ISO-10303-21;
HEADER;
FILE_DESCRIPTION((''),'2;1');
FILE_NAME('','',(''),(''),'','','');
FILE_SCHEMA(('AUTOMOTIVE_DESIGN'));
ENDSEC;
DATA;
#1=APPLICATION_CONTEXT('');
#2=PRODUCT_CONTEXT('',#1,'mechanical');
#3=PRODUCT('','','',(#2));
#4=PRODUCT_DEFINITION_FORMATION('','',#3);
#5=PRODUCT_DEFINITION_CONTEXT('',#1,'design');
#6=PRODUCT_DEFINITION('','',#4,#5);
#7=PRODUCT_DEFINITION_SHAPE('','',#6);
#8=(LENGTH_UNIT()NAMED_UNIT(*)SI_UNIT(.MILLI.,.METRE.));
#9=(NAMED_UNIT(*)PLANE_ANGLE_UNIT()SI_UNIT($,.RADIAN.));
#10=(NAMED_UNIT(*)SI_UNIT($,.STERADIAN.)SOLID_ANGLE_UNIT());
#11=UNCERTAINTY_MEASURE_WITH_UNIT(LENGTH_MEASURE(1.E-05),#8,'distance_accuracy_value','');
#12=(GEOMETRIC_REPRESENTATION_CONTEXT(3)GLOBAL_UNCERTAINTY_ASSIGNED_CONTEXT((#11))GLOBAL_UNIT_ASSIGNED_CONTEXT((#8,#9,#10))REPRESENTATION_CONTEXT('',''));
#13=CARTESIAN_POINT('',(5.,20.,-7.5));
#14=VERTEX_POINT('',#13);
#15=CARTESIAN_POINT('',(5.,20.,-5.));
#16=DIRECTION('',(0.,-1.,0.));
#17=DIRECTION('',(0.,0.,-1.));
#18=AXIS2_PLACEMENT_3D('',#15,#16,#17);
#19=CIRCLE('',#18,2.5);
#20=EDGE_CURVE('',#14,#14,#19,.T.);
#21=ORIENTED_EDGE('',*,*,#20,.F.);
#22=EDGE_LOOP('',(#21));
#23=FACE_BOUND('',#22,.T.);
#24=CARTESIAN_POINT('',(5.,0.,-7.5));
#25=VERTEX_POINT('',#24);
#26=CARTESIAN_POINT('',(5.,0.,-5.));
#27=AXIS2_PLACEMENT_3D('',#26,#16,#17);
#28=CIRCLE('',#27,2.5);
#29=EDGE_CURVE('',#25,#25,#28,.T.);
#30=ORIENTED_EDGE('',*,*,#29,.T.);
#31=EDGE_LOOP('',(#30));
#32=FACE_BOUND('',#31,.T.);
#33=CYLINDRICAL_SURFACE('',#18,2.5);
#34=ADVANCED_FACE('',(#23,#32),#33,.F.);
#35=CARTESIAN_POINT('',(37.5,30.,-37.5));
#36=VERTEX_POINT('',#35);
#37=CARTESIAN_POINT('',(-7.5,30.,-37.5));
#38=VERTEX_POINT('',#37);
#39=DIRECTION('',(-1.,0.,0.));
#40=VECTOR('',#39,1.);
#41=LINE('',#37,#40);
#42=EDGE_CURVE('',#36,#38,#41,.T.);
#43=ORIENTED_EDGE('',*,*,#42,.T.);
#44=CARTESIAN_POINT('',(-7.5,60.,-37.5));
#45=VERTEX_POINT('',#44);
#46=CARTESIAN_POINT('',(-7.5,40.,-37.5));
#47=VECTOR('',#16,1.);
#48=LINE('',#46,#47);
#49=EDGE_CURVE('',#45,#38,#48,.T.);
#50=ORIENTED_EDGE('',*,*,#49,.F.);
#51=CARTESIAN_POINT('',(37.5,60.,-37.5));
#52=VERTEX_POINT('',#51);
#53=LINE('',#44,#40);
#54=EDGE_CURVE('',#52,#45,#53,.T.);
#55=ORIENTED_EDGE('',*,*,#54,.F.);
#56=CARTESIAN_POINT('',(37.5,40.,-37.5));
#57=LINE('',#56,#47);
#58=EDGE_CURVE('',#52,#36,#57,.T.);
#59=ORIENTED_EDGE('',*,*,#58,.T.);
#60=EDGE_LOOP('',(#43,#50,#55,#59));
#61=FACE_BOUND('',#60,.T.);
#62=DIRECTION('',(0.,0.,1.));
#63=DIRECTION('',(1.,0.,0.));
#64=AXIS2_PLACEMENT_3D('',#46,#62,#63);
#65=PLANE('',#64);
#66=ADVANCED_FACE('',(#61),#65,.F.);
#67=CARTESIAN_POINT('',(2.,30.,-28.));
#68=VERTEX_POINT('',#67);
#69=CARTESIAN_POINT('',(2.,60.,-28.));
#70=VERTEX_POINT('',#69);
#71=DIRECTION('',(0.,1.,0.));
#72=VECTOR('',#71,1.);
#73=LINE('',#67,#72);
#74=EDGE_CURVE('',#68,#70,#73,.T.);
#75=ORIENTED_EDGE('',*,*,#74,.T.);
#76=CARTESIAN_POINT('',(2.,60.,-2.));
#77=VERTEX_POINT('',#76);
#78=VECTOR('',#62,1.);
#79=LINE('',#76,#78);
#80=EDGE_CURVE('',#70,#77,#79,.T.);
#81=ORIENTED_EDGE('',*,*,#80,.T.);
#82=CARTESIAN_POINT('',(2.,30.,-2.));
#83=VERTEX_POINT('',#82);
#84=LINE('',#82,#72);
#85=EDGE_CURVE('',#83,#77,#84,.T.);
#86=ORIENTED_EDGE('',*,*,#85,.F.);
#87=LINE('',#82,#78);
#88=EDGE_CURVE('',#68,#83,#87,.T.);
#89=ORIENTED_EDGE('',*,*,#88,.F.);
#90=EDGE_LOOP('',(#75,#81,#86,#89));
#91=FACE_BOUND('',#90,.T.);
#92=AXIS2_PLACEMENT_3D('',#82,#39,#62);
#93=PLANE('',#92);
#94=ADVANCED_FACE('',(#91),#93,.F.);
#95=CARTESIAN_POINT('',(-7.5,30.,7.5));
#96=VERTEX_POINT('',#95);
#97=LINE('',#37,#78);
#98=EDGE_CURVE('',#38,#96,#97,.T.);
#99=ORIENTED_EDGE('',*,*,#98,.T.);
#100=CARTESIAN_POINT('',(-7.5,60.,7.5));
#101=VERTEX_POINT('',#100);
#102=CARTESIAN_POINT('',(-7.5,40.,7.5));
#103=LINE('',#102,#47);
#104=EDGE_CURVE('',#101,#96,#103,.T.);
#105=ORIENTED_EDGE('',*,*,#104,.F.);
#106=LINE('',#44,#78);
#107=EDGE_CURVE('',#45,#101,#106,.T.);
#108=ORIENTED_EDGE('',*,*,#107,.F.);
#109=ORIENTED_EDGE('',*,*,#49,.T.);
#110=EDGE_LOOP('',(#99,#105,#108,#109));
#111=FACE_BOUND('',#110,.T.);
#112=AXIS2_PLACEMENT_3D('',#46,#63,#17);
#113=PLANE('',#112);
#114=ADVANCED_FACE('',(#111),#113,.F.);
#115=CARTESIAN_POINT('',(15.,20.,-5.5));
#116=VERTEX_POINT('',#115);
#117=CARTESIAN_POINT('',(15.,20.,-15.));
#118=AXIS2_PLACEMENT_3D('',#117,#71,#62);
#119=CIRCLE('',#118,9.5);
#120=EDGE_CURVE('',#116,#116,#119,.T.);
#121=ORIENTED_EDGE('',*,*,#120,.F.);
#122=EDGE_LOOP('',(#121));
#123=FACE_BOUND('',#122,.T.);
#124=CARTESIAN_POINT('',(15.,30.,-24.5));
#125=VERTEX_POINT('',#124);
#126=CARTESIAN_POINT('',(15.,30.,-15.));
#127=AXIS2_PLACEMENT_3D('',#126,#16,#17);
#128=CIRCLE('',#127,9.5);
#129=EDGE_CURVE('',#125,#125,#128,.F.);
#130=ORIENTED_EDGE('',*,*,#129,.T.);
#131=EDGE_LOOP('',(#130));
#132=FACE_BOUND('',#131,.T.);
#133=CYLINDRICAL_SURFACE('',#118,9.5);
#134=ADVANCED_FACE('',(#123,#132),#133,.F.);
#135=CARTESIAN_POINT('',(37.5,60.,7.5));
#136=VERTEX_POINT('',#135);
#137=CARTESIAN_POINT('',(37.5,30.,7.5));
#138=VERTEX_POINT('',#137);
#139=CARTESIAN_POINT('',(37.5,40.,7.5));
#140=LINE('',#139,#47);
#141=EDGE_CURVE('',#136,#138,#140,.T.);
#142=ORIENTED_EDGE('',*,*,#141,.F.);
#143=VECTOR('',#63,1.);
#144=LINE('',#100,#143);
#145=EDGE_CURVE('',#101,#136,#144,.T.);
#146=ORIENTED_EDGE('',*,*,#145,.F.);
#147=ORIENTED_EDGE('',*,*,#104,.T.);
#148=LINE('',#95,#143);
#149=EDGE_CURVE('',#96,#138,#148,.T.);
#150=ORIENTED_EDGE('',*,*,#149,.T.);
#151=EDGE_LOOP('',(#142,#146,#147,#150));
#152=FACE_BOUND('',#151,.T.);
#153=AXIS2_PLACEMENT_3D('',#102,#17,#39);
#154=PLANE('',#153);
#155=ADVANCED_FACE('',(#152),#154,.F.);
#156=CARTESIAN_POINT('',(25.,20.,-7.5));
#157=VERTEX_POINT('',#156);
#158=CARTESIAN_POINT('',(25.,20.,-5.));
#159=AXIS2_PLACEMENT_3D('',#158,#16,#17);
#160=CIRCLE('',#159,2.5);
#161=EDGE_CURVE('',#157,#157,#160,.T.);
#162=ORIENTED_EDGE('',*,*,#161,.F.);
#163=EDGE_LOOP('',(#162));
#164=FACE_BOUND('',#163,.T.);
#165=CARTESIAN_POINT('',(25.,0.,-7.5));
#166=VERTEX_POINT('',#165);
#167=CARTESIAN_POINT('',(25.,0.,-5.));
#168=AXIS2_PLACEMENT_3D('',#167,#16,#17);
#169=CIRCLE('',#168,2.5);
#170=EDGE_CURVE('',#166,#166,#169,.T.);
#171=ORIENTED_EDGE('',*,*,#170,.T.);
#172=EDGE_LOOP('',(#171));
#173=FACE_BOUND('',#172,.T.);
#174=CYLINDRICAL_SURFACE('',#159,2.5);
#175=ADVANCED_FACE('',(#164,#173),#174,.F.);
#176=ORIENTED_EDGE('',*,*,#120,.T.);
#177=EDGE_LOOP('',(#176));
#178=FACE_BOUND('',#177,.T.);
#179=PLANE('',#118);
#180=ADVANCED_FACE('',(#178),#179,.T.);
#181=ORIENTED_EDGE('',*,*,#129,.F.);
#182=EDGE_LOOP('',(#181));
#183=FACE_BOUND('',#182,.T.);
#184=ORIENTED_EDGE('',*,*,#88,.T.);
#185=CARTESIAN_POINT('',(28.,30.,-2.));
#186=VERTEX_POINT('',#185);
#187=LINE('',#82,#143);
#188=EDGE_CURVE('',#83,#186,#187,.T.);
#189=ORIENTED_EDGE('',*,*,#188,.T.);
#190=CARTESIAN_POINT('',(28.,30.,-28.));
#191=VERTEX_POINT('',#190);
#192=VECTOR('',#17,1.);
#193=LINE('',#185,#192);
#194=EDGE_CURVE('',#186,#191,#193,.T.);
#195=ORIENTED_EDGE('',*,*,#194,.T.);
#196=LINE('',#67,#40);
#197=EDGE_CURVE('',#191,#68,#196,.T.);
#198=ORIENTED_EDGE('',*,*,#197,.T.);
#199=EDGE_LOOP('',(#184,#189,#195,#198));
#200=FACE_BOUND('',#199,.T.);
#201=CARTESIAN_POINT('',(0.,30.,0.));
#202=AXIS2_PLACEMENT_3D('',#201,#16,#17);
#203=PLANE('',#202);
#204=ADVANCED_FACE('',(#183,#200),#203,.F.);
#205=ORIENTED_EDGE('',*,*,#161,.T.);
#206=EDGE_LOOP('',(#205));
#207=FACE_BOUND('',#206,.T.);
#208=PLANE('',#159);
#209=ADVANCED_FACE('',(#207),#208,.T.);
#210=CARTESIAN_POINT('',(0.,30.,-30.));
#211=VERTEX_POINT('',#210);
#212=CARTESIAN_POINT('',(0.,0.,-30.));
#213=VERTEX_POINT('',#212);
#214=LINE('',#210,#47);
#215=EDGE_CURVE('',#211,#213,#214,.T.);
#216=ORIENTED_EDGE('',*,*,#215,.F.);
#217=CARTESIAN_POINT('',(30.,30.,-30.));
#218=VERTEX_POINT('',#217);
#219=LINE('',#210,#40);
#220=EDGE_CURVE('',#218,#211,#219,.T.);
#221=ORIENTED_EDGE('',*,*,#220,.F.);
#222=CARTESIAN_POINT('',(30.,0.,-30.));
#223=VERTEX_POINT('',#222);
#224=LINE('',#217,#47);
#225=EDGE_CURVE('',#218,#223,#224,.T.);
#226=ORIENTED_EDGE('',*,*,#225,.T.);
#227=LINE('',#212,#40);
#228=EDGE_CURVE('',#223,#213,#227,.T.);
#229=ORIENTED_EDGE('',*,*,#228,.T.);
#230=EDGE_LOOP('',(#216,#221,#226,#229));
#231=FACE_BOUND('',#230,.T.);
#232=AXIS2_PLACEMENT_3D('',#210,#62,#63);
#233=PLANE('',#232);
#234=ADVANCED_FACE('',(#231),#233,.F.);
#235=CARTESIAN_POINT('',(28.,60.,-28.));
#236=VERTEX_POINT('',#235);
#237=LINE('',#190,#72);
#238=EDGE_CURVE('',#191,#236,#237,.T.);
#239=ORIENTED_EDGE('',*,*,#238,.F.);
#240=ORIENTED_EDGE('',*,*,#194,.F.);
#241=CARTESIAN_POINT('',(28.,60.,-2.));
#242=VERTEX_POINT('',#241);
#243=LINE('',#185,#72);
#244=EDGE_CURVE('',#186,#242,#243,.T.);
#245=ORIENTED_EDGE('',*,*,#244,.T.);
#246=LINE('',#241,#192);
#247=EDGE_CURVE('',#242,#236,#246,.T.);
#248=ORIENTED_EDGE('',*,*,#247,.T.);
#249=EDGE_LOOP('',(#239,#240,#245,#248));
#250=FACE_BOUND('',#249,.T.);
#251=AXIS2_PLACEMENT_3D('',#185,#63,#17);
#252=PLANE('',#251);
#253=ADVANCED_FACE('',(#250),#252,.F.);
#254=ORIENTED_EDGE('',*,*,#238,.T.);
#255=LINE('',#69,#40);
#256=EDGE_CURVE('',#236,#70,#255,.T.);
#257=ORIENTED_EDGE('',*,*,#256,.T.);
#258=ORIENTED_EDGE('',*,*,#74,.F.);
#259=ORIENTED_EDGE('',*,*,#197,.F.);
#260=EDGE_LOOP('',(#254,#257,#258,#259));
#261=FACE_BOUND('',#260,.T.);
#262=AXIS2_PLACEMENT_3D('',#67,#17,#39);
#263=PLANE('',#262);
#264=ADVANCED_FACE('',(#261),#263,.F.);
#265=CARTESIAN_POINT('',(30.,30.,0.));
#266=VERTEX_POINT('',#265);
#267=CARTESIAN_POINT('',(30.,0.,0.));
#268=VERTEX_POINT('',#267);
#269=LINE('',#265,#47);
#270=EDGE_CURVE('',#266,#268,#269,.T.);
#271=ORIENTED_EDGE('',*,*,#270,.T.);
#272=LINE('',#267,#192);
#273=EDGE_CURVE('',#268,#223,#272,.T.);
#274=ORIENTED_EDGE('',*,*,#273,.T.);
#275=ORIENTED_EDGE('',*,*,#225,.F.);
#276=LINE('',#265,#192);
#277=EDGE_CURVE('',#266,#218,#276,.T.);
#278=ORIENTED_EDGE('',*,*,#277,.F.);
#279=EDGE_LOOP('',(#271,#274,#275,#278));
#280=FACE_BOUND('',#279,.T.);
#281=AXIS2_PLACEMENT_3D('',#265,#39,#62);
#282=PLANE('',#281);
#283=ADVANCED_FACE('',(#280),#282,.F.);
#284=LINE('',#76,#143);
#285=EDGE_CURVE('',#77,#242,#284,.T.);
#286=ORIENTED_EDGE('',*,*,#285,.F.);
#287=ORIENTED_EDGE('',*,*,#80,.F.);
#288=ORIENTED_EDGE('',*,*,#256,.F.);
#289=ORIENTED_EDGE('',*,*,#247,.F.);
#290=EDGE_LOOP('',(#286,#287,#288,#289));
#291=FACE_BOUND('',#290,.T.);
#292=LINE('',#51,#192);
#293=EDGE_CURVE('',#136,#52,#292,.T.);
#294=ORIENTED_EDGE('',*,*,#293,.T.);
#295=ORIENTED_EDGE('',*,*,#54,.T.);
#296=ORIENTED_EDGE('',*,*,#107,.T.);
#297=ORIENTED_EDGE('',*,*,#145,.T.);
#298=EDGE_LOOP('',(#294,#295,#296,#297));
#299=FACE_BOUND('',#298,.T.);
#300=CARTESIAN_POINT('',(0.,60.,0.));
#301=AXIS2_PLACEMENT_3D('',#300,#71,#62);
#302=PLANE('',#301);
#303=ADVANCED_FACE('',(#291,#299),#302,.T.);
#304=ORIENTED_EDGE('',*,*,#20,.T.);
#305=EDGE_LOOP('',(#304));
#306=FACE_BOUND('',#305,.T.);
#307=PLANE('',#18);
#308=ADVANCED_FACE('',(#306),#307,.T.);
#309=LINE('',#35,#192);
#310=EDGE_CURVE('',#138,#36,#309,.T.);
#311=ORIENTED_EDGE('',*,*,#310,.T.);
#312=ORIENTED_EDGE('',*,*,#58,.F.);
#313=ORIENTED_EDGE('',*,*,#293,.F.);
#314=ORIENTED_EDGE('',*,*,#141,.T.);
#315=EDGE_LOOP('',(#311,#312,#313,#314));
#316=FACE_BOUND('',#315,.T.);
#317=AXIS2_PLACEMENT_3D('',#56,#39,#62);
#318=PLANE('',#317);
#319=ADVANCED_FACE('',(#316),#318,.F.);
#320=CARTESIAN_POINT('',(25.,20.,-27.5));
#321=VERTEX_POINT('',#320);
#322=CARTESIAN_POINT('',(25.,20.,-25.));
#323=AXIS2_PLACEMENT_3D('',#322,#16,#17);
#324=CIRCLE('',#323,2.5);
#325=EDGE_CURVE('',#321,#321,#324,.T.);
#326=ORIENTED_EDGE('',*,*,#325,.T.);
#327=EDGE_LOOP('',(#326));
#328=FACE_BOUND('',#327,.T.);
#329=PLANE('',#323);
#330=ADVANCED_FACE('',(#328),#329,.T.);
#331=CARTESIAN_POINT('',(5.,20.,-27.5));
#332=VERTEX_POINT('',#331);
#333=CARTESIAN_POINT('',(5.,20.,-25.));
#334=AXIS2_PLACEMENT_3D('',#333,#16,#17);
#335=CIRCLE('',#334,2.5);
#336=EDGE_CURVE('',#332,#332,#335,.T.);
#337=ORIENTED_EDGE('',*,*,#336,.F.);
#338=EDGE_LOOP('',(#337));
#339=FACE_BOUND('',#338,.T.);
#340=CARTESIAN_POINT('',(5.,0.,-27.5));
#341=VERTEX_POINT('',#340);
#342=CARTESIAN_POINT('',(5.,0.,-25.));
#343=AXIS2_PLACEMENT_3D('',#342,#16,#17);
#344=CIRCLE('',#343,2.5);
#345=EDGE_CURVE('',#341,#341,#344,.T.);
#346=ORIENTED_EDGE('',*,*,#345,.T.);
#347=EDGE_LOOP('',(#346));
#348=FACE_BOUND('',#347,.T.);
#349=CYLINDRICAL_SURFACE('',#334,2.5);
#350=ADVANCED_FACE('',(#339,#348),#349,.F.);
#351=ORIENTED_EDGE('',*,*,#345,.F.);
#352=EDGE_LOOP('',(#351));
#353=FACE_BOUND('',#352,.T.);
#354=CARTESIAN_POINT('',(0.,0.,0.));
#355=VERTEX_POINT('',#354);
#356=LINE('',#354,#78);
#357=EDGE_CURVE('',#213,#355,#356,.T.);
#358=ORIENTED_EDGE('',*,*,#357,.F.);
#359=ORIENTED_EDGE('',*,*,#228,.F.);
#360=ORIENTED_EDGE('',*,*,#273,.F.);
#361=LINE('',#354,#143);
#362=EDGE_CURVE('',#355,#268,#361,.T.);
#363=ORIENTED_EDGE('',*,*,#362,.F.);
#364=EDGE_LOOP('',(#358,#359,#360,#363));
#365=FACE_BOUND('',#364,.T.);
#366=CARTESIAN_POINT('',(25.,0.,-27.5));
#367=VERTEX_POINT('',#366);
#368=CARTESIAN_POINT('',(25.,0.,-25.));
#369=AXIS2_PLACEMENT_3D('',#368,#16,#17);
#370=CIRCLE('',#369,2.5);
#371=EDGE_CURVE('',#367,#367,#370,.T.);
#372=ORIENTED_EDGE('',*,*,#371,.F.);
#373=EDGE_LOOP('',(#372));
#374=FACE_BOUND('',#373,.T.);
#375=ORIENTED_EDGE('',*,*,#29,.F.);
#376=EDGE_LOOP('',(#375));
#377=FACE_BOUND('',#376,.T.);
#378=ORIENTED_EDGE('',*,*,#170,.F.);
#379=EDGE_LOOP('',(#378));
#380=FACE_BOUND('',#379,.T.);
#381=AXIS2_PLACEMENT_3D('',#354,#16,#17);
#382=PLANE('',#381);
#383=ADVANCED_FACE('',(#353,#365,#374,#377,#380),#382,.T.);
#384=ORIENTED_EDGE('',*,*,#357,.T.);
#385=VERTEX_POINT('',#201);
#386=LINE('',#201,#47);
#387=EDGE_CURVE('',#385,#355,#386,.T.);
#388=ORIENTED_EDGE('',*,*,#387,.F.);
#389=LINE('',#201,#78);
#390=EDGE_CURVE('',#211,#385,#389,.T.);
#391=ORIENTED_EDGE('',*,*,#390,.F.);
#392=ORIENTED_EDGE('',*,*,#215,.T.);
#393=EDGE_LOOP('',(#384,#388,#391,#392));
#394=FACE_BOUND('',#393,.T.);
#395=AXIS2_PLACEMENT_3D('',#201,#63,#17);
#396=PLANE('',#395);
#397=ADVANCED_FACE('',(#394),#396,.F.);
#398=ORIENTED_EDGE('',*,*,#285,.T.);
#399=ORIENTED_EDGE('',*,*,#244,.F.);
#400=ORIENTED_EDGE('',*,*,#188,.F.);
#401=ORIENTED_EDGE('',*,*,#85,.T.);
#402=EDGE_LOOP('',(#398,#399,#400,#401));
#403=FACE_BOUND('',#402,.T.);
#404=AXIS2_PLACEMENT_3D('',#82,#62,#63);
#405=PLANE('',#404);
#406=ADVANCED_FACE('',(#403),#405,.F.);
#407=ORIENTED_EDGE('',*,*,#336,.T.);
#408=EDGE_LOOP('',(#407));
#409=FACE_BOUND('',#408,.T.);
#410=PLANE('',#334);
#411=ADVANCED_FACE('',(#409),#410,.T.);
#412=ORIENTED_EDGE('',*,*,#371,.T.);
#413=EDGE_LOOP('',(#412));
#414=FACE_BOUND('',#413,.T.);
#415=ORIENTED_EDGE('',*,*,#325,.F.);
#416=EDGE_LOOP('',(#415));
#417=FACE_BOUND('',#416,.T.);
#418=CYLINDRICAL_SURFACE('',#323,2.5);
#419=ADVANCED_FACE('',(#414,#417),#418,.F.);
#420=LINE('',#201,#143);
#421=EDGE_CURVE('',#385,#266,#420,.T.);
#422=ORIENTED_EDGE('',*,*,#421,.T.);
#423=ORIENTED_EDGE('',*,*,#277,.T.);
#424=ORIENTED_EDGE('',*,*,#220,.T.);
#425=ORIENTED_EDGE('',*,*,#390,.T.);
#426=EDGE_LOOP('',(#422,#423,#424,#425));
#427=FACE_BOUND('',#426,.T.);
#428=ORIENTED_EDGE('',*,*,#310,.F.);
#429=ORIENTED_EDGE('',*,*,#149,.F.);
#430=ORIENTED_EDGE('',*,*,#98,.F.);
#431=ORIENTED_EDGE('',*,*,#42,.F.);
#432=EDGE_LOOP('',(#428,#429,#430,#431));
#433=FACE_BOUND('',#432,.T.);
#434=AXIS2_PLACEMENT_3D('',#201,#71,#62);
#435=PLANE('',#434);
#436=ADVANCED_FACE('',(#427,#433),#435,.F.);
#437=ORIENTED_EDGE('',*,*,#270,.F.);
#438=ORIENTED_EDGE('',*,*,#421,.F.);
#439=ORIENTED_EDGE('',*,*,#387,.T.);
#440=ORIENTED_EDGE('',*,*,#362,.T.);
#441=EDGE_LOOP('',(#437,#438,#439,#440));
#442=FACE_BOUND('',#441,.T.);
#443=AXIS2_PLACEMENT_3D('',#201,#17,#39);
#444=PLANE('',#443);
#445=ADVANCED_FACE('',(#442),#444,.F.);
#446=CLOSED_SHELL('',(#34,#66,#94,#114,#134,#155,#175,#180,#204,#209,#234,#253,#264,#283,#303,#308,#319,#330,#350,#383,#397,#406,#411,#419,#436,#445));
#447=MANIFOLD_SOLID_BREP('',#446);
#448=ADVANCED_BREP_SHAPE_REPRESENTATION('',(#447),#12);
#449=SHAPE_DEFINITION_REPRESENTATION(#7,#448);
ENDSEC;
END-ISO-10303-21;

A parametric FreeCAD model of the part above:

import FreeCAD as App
import Part
import Sketcher
from FreeCAD import Vector
Q = App.Units.Quantity


def add_polygon(sketch, points):
    """Adds a closed chain of lines whose ends are joined by coincident constraints."""
    first, n = sketch.GeometryCount, len(points)
    for a, b in zip(points, points[1:] + points[:1]):
        sketch.addGeometry(Part.LineSegment(App.Vector(*a, 0), App.Vector(*b, 0)), False)
    for i in range(n):
        sketch.addConstraint(Sketcher.Constraint("Coincident", first + i, 2, first + (i + 1) % n, 1))

doc = App.newDocument("Part")
body = doc.addObject("PartDesign::Body", "Body")

# Sketch on XZ plane
sketch1 = body.newObject("Sketcher::SketchObject", "Sketch")
sketch1.AttachmentSupport = (doc.getObject("XZ_Plane"), [""])
sketch1.MapMode = "FlatFace"
add_polygon(sketch1, [(0, -30), (0, 0), (30, 0), (30, -30)])  # lines 0-3
sketch1.addConstraint(Sketcher.Constraint("Vertical", 0))
sketch1.addConstraint(Sketcher.Constraint("Horizontal", 1))
sketch1.addConstraint(Sketcher.Constraint("Vertical", 2))
sketch1.addConstraint(Sketcher.Constraint("Horizontal", 3))
sketch1.addConstraint(Sketcher.Constraint("Coincident", 0, 2, -1, 1))
sketch1.addConstraint(Sketcher.Constraint("Equal", 3, 0))
sketch1.addConstraint(Sketcher.Constraint("DistanceX", 1, 1, 1, 2, Q("30 mm")))
pad1 = body.newObject("PartDesign::Pad", "Pad")
pad1.Profile = sketch1
pad1.Length = 30
pad1.Reversed = True

# Sketch on XZ plane
sketch2 = body.newObject("Sketcher::SketchObject", "Sketch001")
sketch2.AttachmentSupport = (doc.getObject("XZ_Plane"), [""])
sketch2.MapMode = "FlatFace"
sketch2.AttachmentOffset = App.Placement(Vector(0, 0, -30), App.Rotation())
add_polygon(sketch2, [(-8, -38), (-8, 8), (38, 8), (38, -38)])  # lines 0-3
sketch2.addConstraint(Sketcher.Constraint("Vertical", 0))
sketch2.addConstraint(Sketcher.Constraint("Horizontal", 1))
sketch2.addConstraint(Sketcher.Constraint("Vertical", 2))
sketch2.addConstraint(Sketcher.Constraint("Horizontal", 3))
sketch2.addConstraint(Sketcher.Constraint("Equal", 3, 0))
sketch2.addConstraint(Sketcher.Constraint("DistanceX", 1, 1, 1, 2, Q("45 mm")))
sketch2.addConstraint(Sketcher.Constraint("DistanceX", 0, 2, -1, 1, Q("7.5 mm")))
sketch2.addConstraint(Sketcher.Constraint("DistanceY", -1, 1, 0, 2, Q("7.5 mm")))
pad2 = body.newObject("PartDesign::Pad", "Pad001")
pad2.Profile = sketch2
pad2.Length = 10
pad2.Reversed = True

# Sketch on XZ plane
sketch3 = body.newObject("Sketcher::SketchObject", "Sketch002")
sketch3.AttachmentSupport = (doc.getObject("XZ_Plane"), [""])
sketch3.MapMode = "FlatFace"
sketch3.AttachmentOffset = App.Placement(Vector(0, 0, -40), App.Rotation())
add_polygon(sketch3, [(-8, -38), (-8, 8), (38, 8), (38, -38)])  # lines 0-3
sketch3.addConstraint(Sketcher.Constraint("Vertical", 0))
sketch3.addConstraint(Sketcher.Constraint("Horizontal", 1))
sketch3.addConstraint(Sketcher.Constraint("Vertical", 2))
sketch3.addConstraint(Sketcher.Constraint("Horizontal", 3))
sketch3.addConstraint(Sketcher.Constraint("Equal", 3, 0))
sketch3.addConstraint(Sketcher.Constraint("DistanceX", 1, 1, 1, 2, Q("45 mm")))
sketch3.addConstraint(Sketcher.Constraint("DistanceX", 0, 2, -1, 1, Q("7.5 mm")))
sketch3.addConstraint(Sketcher.Constraint("DistanceY", -1, 1, 0, 2, Q("7.5 mm")))
pad3 = body.newObject("PartDesign::Pad", "Pad002")
pad3.Profile = sketch3
pad3.Length = 20
pad3.Reversed = True

# Sketch on XZ plane
sketch4 = body.newObject("Sketcher::SketchObject", "Sketch003")
sketch4.AttachmentSupport = (doc.getObject("XZ_Plane"), [""])
sketch4.MapMode = "FlatFace"
sketch4.AttachmentOffset = App.Placement(Vector(0, 0, -60), App.Rotation())
sketch4.addGeometry(Part.Circle(Vector(15, -15, 0), Vector(0, 0, 1), 10), False)
sketch4.addConstraint(Sketcher.Constraint("Diameter", 0, Q("19 mm")))
sketch4.addConstraint(Sketcher.Constraint("DistanceX", -1, 1, 0, 3, Q("15 mm")))
sketch4.addConstraint(Sketcher.Constraint("DistanceY", 0, 3, -1, 1, Q("15 mm")))
pocket1 = body.newObject("PartDesign::Pocket", "Pocket")
pocket1.Profile = sketch4
pocket1.Length = 40
pocket1.Reversed = True

# Sketch on XZ plane
sketch5 = body.newObject("Sketcher::SketchObject", "Sketch004")
sketch5.AttachmentSupport = (doc.getObject("XZ_Plane"), [""])
sketch5.MapMode = "FlatFace"
sketch5.AttachmentOffset = App.Placement(Vector(0, 0, -60), App.Rotation())
add_polygon(sketch5, [(2, -28), (2, -2), (28, -2), (28, -28)])  # lines 0-3
sketch5.addConstraint(Sketcher.Constraint("Vertical", 0))
sketch5.addConstraint(Sketcher.Constraint("Horizontal", 1))
sketch5.addConstraint(Sketcher.Constraint("Vertical", 2))
sketch5.addConstraint(Sketcher.Constraint("Horizontal", 3))
sketch5.addConstraint(Sketcher.Constraint("Equal", 3, 0))
sketch5.addConstraint(Sketcher.Constraint("DistanceX", 1, 1, 1, 2, Q("26 mm")))
sketch5.addConstraint(Sketcher.Constraint("DistanceX", -1, 1, 0, 2, Q("2 mm")))
sketch5.addConstraint(Sketcher.Constraint("DistanceY", 0, 2, -1, 1, Q("2 mm")))
pocket2 = body.newObject("PartDesign::Pocket", "Pocket001")
pocket2.Profile = sketch5
pocket2.Length = 30
pocket2.Reversed = True

# Sketch on XZ plane
sketch6 = body.newObject("Sketcher::SketchObject", "Sketch005")
sketch6.AttachmentSupport = (doc.getObject("XZ_Plane"), [""])
sketch6.MapMode = "FlatFace"
sketch6.addGeometry(Part.Circle(Vector(25, -25, 0), Vector(0, 0, 1), 2.5), False)
sketch6.addGeometry(Part.Circle(Vector(5, -25, 0), Vector(0, 0, 1), 2.5), False)
sketch6.addGeometry(Part.Circle(Vector(5, -5, 0), Vector(0, 0, 1), 2.5), False)
sketch6.addGeometry(Part.Circle(Vector(25, -5, 0), Vector(0, 0, 1), 2.5), False)
sketch6.addConstraint(Sketcher.Constraint("Equal", 0, 1))
sketch6.addConstraint(Sketcher.Constraint("Equal", 1, 2))
sketch6.addConstraint(Sketcher.Constraint("Equal", 2, 3))
sketch6.addConstraint(Sketcher.Constraint("Horizontal", 0, 3, 1, 3))
sketch6.addConstraint(Sketcher.Constraint("Horizontal", 2, 3, 3, 3))
sketch6.addConstraint(Sketcher.Constraint("Vertical", 1, 3, 2, 3))
sketch6.addConstraint(Sketcher.Constraint("Vertical", 0, 3, 3, 3))
sketch6.addConstraint(Sketcher.Constraint("Diameter", 0, Q("5 mm")))
sketch6.addConstraint(Sketcher.Constraint("DistanceX", -1, 1, 0, 3, Q("25 mm")))
sketch6.addConstraint(Sketcher.Constraint("DistanceY", 0, 3, -1, 1, Q("25 mm")))
sketch6.addConstraint(Sketcher.Constraint("DistanceX", -1, 1, 1, 3, Q("5 mm")))
sketch6.addConstraint(Sketcher.Constraint("DistanceY", 2, 3, -1, 1, Q("5 mm")))
pocket3 = body.newObject("PartDesign::Pocket", "Pocket002")
pocket3.Profile = sketch6
pocket3.Length = 20

doc.recompute()
